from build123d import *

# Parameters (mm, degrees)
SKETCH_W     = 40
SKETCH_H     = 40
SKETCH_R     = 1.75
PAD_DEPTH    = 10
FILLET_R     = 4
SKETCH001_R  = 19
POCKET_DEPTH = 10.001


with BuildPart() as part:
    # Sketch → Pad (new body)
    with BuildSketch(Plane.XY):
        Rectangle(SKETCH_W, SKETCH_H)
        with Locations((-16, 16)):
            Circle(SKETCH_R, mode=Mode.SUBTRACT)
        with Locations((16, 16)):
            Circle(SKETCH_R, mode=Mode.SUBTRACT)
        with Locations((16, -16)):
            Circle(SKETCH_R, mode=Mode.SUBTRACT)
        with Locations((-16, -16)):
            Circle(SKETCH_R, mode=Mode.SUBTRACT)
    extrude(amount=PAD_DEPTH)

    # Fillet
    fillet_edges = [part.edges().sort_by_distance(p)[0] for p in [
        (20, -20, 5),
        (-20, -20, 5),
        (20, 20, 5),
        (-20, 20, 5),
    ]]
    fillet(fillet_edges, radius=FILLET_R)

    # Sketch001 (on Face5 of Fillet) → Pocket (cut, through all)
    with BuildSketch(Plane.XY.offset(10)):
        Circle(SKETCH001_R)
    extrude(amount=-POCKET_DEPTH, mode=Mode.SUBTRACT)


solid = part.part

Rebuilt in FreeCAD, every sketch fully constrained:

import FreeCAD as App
import Part
import Sketcher
from FreeCAD import Vector


def edges_at(feature, points):
    """Names of the edges that pass closest to the given points."""
    edges = feature.Shape.Edges
    near = lambda p: min(range(len(edges)), key=lambda i: edges[i].distToShape(Part.Vertex(*p))[0])
    return sorted({f"Edge{near(p) + 1}" for p in points})

doc = App.newDocument("Part")
body = doc.addObject("PartDesign::Body", "Body")

# Sketch on XY plane
sketch1 = body.newObject("Sketcher::SketchObject", "Sketch")
sketch1.AttachmentSupport = (doc.getObject("XY_Plane"), [""])
sketch1.MapMode = "FlatFace"
sketch1.addGeometry([
    Part.LineSegment(Vector(-20, 20, 0), Vector(-20, -20, 0)),  # 0
    Part.LineSegment(Vector(-20, -20, 0), Vector(20, -20, 0)),  # 1
    Part.LineSegment(Vector(20, -20, 0), Vector(20, 20, 0)),  # 2
    Part.LineSegment(Vector(20, 20, 0), Vector(-20, 20, 0)),  # 3
    Part.Circle(Vector(-16, -16, 0), Vector(0, 0, 1), 1.8),  # 4
    Part.Circle(Vector(16, -16, 0), Vector(0, 0, 1), 1.8),  # 5
    Part.Circle(Vector(-16, 16, 0), Vector(0, 0, 1), 1.8),  # 6
    Part.Circle(Vector(16, 16, 0), Vector(0, 0, 1), 1.8),  # 7
], False)
sketch1.addConstraint([
    Sketcher.Constraint("Coincident", 0, 2, 1, 1),
    Sketcher.Constraint("Coincident", 1, 2, 2, 1),
    Sketcher.Constraint("Coincident", 2, 2, 3, 1),
    Sketcher.Constraint("Coincident", 3, 2, 0, 1),
    Sketcher.Constraint("Vertical", 0),
    Sketcher.Constraint("Horizontal", 1),
    Sketcher.Constraint("Vertical", 2),
    Sketcher.Constraint("Horizontal", 3),
    Sketcher.Constraint("Equal", 4, 5),
    Sketcher.Constraint("Equal", 5, 6),
    Sketcher.Constraint("Equal", 6, 7),
    Sketcher.Constraint("Symmetric", 5, 3, 6, 3, -1, 1),
    Sketcher.Constraint("Symmetric", 4, 3, 7, 3, -1, 1),
    Sketcher.Constraint("Symmetric", 0, 2, 2, 2, -1, 1),
    Sketcher.Constraint("Symmetric", 4, 3, 5, 3, -2),
    Sketcher.Constraint("Equal", 3, 0),
    Sketcher.Constraint("Diameter", 4, 3.5),
    Sketcher.Constraint("DistanceX", 1, 1, 1, 2, 40.0),
    Sketcher.Constraint("DistanceX", 4, 3, -1, 1, 16.0),
    Sketcher.Constraint("DistanceY", 4, 3, -1, 1, 16.0),
])
pad1 = body.newObject("PartDesign::Pad", "Pad")
pad1.Profile = sketch1
pad1.Length = 10
doc.recompute()

fillet = body.newObject("PartDesign::Fillet", "Fillet")
fillet.Base = (pad1, edges_at(pad1, [
    (20, -20, 5),
    (-20, -20, 5),
    (20, 20, 5),
    (-20, 20, 5),
]))
fillet.Radius = 4

# Sketch on XY plane
sketch2 = body.newObject("Sketcher::SketchObject", "Sketch001")
sketch2.AttachmentSupport = (doc.getObject("XY_Plane"), [""])
sketch2.MapMode = "FlatFace"
sketch2.AttachmentOffset = App.Placement(Vector(0, 0, 10), App.Rotation())
sketch2.addGeometry(Part.Circle(Vector(0, 0, 0), Vector(0, 0, 1), 19), False)
sketch2.addConstraint([
    Sketcher.Constraint("Coincident", 0, 3, -1, 1),
    Sketcher.Constraint("Diameter", 0, 38.0),
])
pocket1 = body.newObject("PartDesign::Pocket", "Pocket")
pocket1.Profile = sketch2
pocket1.Type = "ThroughAll"

doc.recompute()
